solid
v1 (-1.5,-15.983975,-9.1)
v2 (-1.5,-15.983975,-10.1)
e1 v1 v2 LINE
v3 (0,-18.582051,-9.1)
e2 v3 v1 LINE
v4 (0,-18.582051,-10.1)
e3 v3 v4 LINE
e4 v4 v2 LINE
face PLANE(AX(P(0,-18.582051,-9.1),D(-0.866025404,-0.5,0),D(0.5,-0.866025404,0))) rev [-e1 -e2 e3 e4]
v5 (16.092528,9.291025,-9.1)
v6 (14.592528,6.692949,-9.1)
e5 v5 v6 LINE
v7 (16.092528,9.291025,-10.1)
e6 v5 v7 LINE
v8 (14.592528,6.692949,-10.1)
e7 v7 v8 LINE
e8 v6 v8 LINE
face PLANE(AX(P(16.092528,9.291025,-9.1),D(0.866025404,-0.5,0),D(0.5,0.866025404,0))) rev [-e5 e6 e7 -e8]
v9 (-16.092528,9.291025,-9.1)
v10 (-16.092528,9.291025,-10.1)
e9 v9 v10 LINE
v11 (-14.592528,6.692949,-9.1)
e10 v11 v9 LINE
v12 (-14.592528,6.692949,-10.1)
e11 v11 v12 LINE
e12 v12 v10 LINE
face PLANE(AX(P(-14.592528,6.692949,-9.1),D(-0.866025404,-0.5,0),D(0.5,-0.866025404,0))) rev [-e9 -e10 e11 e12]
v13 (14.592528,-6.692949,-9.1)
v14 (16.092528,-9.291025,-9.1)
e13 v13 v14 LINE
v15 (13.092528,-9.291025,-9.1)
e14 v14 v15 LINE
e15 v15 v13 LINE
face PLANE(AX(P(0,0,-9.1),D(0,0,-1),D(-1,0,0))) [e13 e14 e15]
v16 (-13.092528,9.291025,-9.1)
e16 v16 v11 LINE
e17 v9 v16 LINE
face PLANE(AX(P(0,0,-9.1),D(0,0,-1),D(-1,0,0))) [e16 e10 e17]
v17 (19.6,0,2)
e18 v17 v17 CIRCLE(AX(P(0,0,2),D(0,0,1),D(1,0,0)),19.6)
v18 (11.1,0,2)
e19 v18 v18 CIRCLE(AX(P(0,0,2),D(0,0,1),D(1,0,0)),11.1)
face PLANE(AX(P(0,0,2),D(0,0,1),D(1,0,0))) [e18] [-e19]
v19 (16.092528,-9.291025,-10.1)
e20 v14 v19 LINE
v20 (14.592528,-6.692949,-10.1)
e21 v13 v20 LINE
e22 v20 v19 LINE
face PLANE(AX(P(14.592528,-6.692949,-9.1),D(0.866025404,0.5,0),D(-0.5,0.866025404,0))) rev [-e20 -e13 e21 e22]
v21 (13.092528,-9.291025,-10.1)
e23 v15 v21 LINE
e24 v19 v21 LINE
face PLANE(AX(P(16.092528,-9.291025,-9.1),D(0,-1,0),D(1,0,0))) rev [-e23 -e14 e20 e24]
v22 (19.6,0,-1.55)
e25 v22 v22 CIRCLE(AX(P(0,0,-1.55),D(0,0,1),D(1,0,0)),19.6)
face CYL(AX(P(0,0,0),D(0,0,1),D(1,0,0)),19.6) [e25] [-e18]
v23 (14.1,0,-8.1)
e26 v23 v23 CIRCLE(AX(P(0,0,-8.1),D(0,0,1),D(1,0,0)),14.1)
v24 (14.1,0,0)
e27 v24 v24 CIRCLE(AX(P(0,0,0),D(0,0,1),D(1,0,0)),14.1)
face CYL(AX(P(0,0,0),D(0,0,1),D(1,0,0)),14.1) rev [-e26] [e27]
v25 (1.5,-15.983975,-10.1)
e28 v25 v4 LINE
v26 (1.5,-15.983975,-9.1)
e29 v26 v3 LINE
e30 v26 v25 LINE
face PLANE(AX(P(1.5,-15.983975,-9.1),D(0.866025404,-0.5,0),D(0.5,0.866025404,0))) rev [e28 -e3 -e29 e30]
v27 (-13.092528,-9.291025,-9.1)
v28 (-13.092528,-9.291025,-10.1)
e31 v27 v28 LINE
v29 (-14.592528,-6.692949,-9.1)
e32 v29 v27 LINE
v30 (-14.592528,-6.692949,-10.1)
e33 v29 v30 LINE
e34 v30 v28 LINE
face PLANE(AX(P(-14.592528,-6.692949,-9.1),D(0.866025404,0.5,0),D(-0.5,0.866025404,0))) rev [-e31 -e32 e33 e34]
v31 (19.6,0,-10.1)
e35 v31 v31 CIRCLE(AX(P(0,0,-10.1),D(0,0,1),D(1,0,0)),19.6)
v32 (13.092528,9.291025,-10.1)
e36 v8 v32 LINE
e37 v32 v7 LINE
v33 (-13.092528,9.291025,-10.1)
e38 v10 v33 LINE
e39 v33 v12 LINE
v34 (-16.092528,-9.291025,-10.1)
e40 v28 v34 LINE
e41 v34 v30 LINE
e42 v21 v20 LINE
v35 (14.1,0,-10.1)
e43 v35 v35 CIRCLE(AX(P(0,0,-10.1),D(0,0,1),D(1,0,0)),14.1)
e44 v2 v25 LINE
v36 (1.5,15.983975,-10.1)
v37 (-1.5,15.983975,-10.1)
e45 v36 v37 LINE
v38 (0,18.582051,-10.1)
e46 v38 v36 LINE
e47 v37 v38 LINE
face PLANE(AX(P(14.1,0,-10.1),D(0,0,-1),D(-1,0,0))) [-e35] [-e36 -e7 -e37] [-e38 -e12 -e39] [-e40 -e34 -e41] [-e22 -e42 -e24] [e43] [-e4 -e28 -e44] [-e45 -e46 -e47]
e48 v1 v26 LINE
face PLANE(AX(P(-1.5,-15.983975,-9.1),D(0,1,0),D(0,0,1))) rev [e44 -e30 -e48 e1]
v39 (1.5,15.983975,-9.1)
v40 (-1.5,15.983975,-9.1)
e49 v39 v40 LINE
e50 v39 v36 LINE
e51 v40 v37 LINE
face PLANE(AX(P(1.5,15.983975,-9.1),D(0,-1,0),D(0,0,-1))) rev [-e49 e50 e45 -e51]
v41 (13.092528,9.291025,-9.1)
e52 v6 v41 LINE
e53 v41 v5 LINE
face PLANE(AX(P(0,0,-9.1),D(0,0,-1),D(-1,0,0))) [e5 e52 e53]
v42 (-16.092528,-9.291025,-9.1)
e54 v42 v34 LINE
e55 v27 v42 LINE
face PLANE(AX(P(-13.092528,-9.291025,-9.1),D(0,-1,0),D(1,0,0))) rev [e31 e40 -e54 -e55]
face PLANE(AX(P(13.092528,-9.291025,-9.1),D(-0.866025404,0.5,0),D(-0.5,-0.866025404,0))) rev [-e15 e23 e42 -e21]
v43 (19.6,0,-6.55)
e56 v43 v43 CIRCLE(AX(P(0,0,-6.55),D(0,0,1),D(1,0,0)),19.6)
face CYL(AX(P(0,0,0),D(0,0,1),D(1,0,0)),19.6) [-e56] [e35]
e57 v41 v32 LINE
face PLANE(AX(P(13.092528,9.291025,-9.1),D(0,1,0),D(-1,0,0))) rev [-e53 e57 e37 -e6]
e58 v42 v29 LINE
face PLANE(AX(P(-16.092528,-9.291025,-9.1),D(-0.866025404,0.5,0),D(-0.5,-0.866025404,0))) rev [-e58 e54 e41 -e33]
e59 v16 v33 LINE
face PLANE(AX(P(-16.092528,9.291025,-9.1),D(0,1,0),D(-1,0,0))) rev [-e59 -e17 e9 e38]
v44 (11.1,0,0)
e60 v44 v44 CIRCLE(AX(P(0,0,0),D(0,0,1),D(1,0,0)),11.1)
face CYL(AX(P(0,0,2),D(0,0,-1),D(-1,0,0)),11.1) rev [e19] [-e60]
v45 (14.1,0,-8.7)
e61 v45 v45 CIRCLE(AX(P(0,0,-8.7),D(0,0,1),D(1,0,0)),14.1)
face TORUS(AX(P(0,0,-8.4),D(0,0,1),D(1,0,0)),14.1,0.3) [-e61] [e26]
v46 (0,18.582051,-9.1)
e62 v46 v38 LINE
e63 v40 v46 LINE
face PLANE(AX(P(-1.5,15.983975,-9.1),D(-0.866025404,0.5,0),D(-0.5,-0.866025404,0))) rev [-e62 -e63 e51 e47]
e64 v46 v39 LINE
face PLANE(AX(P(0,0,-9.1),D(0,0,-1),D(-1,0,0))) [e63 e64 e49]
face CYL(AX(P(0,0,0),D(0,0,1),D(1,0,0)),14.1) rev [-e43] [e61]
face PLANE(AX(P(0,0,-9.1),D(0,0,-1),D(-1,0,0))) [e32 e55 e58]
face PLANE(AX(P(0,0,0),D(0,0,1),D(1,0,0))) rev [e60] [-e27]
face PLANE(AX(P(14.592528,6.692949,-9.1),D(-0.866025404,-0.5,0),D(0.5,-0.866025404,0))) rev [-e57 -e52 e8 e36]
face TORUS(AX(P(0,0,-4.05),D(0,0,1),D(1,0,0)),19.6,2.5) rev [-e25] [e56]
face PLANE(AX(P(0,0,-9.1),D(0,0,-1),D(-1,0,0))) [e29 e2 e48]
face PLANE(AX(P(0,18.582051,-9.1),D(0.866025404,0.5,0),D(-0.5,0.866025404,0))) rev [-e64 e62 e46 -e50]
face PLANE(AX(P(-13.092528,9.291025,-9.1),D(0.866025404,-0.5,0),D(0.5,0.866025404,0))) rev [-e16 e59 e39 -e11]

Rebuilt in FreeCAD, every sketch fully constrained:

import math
import FreeCAD as App
import Part
import Sketcher
from FreeCAD import Vector
Q = App.Units.Quantity

doc = App.newDocument("Part")
body = doc.addObject("PartDesign::Body", "Body")

# Sketch on XY plane
sketch1 = body.newObject("Sketcher::SketchObject", "Sketch")
sketch1.AttachmentSupport = (doc.getObject("XY_Plane"), [""])
sketch1.MapMode = "FlatFace"
sketch1.addGeometry(Part.Circle(Vector(0, 0, 0), Vector(0, 0, 1), 14.1), False)
sketch1.addGeometry(Part.Circle(Vector(0, 0, 0), Vector(0, 0, 1), 11.1), False)
sketch1.addConstraint(Sketcher.Constraint("Coincident", 0, 3, -1, 1))
sketch1.addConstraint(Sketcher.Constraint("Coincident", 1, 3, -1, 1))
sketch1.addConstraint(Sketcher.Constraint("Diameter", 0, 28.2))
sketch1.addConstraint(Sketcher.Constraint("Diameter", 1, 22.2))
pad1 = body.newObject("PartDesign::Pad", "Pad")
pad1.Profile = sketch1
pad1.Length = 2

# Sketch on XZ plane
sketch2 = body.newObject("Sketcher::SketchObject", "Sketch001")
sketch2.AttachmentSupport = (doc.getObject("XZ_Plane"), [""])
sketch2.MapMode = "FlatFace"
sketch2.addGeometry(Part.LineSegment(Vector(14.1, -8.1, 0), Vector(14.1, 2, 0)), False)
sketch2.addGeometry(Part.LineSegment(Vector(14.1, 2, 0), Vector(19.6, 2, 0)), False)
sketch2.addGeometry(Part.LineSegment(Vector(19.6, 2, 0), Vector(19.6, -1.55, 0)), False)
sketch2.addGeometry(Part.ArcOfCircle(Part.Circle(Vector(19.6, -4.05, 0), Vector(0, 0, 1), 2.5), math.radians(90), math.radians(270)), False)
sketch2.addGeometry(Part.LineSegment(Vector(19.6, -6.55, 0), Vector(19.6, -10.1, 0)), False)
sketch2.addGeometry(Part.LineSegment(Vector(19.6, -10.1, 0), Vector(14.1, -10.1, 0)), False)
sketch2.addGeometry(Part.LineSegment(Vector(14.1, -10.1, 0), Vector(14.1, -8.7, 0)), False)
sketch2.addGeometry(Part.ArcOfCircle(Part.Circle(Vector(14.1, -8.4, 0), Vector(0, 0, 1), 0.3), math.radians(90), math.radians(270)), False)
sketch2.addConstraint(Sketcher.Constraint("Coincident", 0, 2, 1, 1))
sketch2.addConstraint(Sketcher.Constraint("Coincident", 1, 2, 2, 1))
sketch2.addConstraint(Sketcher.Constraint("Coincident", 2, 2, 3, 1))
sketch2.addConstraint(Sketcher.Constraint("Coincident", 3, 2, 4, 1))
sketch2.addConstraint(Sketcher.Constraint("Coincident", 4, 2, 5, 1))
sketch2.addConstraint(Sketcher.Constraint("Coincident", 5, 2, 6, 1))
sketch2.addConstraint(Sketcher.Constraint("Coincident", 6, 2, 7, 2))
sketch2.addConstraint(Sketcher.Constraint("Coincident", 7, 1, 0, 1))
sketch2.addConstraint(Sketcher.Constraint("Vertical", 0))
sketch2.addConstraint(Sketcher.Constraint("Horizontal", 1))
sketch2.addConstraint(Sketcher.Constraint("Vertical", 2))
sketch2.addConstraint(Sketcher.Constraint("Vertical", 4))
sketch2.addConstraint(Sketcher.Constraint("Horizontal", 5))
sketch2.addConstraint(Sketcher.Constraint("Vertical", 6))
sketch2.addConstraint(Sketcher.Constraint("Vertical", 7, 3, 0, 2))
sketch2.addConstraint(Sketcher.Constraint("Vertical", 3, 3, 1, 2))
sketch2.addConstraint(Sketcher.Constraint("Vertical", 2, 2, 3, 2))
sketch2.addConstraint(Sketcher.Constraint("Vertical", 0, 2, 5, 2))
sketch2.addConstraint(Sketcher.Constraint("Equal", 2, 4))
sketch2.addConstraint(Sketcher.Constraint("Radius", 3, 2.5))
sketch2.addConstraint(Sketcher.Constraint("Radius", 7, 0.3))
sketch2.addConstraint(Sketcher.Constraint("DistanceX", 1, 1, 1, 2, 5.5))
sketch2.addConstraint(Sketcher.Constraint("DistanceY", 0, 1, 0, 2, 10.1))
sketch2.addConstraint(Sketcher.Constraint("DistanceY", 6, 1, 6, 2, 1.4))
sketch2.addConstraint(Sketcher.Constraint("DistanceY", -1, 1, 0, 2, 2.0))
sketch2.addConstraint(Sketcher.Constraint("DistanceX", -1, 1, 3, 3, 19.6))
revolution = body.newObject("PartDesign::Revolution", "Revolution")
revolution.Profile = sketch2
revolution.ReferenceAxis = (sketch2, ["V_Axis"])
revolution.Angle = 360

# Sketch on XY plane
sketch3 = body.newObject("Sketcher::SketchObject", "Sketch002")
sketch3.AttachmentSupport = (doc.getObject("XY_Plane"), [""])
sketch3.MapMode = "FlatFace"
sketch3.AttachmentOffset = App.Placement(Vector(0, 0, -10.1), App.Rotation())
sketch3.addGeometry(Part.LineSegment(Vector(-14.592528, 6.692949, 0), Vector(-16.092528, 9.291025, 0)), False)
sketch3.addGeometry(Part.LineSegment(Vector(-16.092528, 9.291025, 0), Vector(-13.092528, 9.291025, 0)), False)
sketch3.addGeometry(Part.LineSegment(Vector(-13.092528, 9.291025, 0), Vector(-14.592528, 6.692949, 0)), False)
sketch3.addGeometry(Part.LineSegment(Vector(-1.5, 15.983975, 0), Vector(0, 18.582051, 0)), False)
sketch3.addGeometry(Part.LineSegment(Vector(0, 18.582051, 0), Vector(1.5, 15.983975, 0)), False)
sketch3.addGeometry(Part.LineSegment(Vector(1.5, 15.983975, 0), Vector(-1.5, 15.983975, 0)), False)
sketch3.addGeometry(Part.LineSegment(Vector(-13.092528, -9.291025, 0), Vector(-16.092528, -9.291025, 0)), False)
sketch3.addGeometry(Part.LineSegment(Vector(-16.092528, -9.291025, 0), Vector(-14.592528, -6.692949, 0)), False)
sketch3.addGeometry(Part.LineSegment(Vector(-14.592528, -6.692949, 0), Vector(-13.092528, -9.291025, 0)), False)
sketch3.addGeometry(Part.LineSegment(Vector(1.5, -15.983975, 0), Vector(0, -18.582051, 0)), False)
sketch3.addGeometry(Part.LineSegment(Vector(0, -18.582051, 0), Vector(-1.5, -15.983975, 0)), False)
sketch3.addGeometry(Part.LineSegment(Vector(-1.5, -15.983975, 0), Vector(1.5, -15.983975, 0)), False)
sketch3.addGeometry(Part.LineSegment(Vector(14.592528, -6.692949, 0), Vector(16.092528, -9.291025, 0)), False)
sketch3.addGeometry(Part.LineSegment(Vector(16.092528, -9.291025, 0), Vector(13.092528, -9.291025, 0)), False)
sketch3.addGeometry(Part.LineSegment(Vector(13.092528, -9.291025, 0), Vector(14.592528, -6.692949, 0)), False)
sketch3.addGeometry(Part.LineSegment(Vector(13.092528, 9.291025, 0), Vector(16.092528, 9.291025, 0)), False)
sketch3.addGeometry(Part.LineSegment(Vector(16.092528, 9.291025, 0), Vector(14.592528, 6.692949, 0)), False)
sketch3.addGeometry(Part.LineSegment(Vector(14.592528, 6.692949, 0), Vector(13.092528, 9.291025, 0)), False)
sketch3.addConstraint(Sketcher.Constraint("Coincident", 0, 2, 1, 1))
sketch3.addConstraint(Sketcher.Constraint("Coincident", 1, 2, 2, 1))
sketch3.addConstraint(Sketcher.Constraint("Coincident", 2, 2, 0, 1))
sketch3.addConstraint(Sketcher.Constraint("Coincident", 3, 2, 4, 1))
sketch3.addConstraint(Sketcher.Constraint("Coincident", 4, 2, 5, 1))
sketch3.addConstraint(Sketcher.Constraint("Coincident", 5, 2, 3, 1))
sketch3.addConstraint(Sketcher.Constraint("Coincident", 6, 2, 7, 1))
sketch3.addConstraint(Sketcher.Constraint("Coincident", 7, 2, 8, 1))
sketch3.addConstraint(Sketcher.Constraint("Coincident", 8, 2, 6, 1))
sketch3.addConstraint(Sketcher.Constraint("Coincident", 9, 2, 10, 1))
sketch3.addConstraint(Sketcher.Constraint("Coincident", 10, 2, 11, 1))
sketch3.addConstraint(Sketcher.Constraint("Coincident", 11, 2, 9, 1))
sketch3.addConstraint(Sketcher.Constraint("Coincident", 12, 2, 13, 1))
sketch3.addConstraint(Sketcher.Constraint("Coincident", 13, 2, 14, 1))
sketch3.addConstraint(Sketcher.Constraint("Coincident", 14, 2, 12, 1))
sketch3.addConstraint(Sketcher.Constraint("Coincident", 15, 2, 16, 1))
sketch3.addConstraint(Sketcher.Constraint("Coincident", 16, 2, 17, 1))
sketch3.addConstraint(Sketcher.Constraint("Coincident", 17, 2, 15, 1))
sketch3.addConstraint(Sketcher.Constraint("Horizontal", 1))
sketch3.addConstraint(Sketcher.Constraint("Horizontal", 5))
sketch3.addConstraint(Sketcher.Constraint("Horizontal", 6))
sketch3.addConstraint(Sketcher.Constraint("Horizontal", 11))
sketch3.addConstraint(Sketcher.Constraint("Horizontal", 13))
sketch3.addConstraint(Sketcher.Constraint("Horizontal", 15))
sketch3.addConstraint(Sketcher.Constraint("Symmetric", 3, 2, 9, 2, -1, 1))
sketch3.addConstraint(Sketcher.Constraint("Symmetric", 4, 2, 10, 2, -1, 1))
sketch3.addConstraint(Sketcher.Constraint("Symmetric", 0, 2, 12, 2, -1, 1))
sketch3.addConstraint(Sketcher.Constraint("Symmetric", 2, 2, 14, 2, -1, 1))
sketch3.addConstraint(Sketcher.Constraint("Symmetric", 6, 2, 15, 2, -1, 1))
sketch3.addConstraint(Sketcher.Constraint("Symmetric", 7, 2, 16, 2, -1, 1))
sketch3.addConstraint(Sketcher.Constraint("Symmetric", 6, 2, 12, 2, -2))
sketch3.addConstraint(Sketcher.Constraint("Symmetric", 7, 2, 14, 2, -2))
sketch3.addConstraint(Sketcher.Constraint("PointOnObject", 3, 2, -2))
sketch3.addConstraint(Sketcher.Constraint("Parallel", 2, 3))
sketch3.addConstraint(Sketcher.Constraint("Parallel", 0, 4))
sketch3.addConstraint(Sketcher.Constraint("Parallel", 3, 7))
sketch3.addConstraint(Sketcher.Constraint("Parallel", 4, 8))
sketch3.addConstraint(Sketcher.Constraint("Parallel", 7, 9))
sketch3.addConstraint(Sketcher.Constraint("Parallel", 9, 14))
sketch3.addConstraint(Sketcher.Constraint("Parallel", 12, 17))
sketch3.addConstraint(Sketcher.Constraint("Equal", 1, 5))
sketch3.addConstraint(Sketcher.Constraint("DistanceX", 1, 1, 1, 2, 3.0))
sketch3.addConstraint(Sketcher.Constraint("Angle", 0, Q("120 deg")))
sketch3.addConstraint(Sketcher.Constraint("DistanceY", 6, 2, 5, 2, 25.275))
sketch3.addConstraint(Sketcher.Constraint("DistanceY", 2, 2, 3, 2, 11.889102))
sketch3.addConstraint(Sketcher.Constraint("DistanceX", 0, 2, -1, 1, 16.092528))
pocket1 = body.newObject("PartDesign::Pocket", "Pocket")
pocket1.Profile = sketch3
pocket1.Length = 1
pocket1.Reversed = True

doc.recompute()
